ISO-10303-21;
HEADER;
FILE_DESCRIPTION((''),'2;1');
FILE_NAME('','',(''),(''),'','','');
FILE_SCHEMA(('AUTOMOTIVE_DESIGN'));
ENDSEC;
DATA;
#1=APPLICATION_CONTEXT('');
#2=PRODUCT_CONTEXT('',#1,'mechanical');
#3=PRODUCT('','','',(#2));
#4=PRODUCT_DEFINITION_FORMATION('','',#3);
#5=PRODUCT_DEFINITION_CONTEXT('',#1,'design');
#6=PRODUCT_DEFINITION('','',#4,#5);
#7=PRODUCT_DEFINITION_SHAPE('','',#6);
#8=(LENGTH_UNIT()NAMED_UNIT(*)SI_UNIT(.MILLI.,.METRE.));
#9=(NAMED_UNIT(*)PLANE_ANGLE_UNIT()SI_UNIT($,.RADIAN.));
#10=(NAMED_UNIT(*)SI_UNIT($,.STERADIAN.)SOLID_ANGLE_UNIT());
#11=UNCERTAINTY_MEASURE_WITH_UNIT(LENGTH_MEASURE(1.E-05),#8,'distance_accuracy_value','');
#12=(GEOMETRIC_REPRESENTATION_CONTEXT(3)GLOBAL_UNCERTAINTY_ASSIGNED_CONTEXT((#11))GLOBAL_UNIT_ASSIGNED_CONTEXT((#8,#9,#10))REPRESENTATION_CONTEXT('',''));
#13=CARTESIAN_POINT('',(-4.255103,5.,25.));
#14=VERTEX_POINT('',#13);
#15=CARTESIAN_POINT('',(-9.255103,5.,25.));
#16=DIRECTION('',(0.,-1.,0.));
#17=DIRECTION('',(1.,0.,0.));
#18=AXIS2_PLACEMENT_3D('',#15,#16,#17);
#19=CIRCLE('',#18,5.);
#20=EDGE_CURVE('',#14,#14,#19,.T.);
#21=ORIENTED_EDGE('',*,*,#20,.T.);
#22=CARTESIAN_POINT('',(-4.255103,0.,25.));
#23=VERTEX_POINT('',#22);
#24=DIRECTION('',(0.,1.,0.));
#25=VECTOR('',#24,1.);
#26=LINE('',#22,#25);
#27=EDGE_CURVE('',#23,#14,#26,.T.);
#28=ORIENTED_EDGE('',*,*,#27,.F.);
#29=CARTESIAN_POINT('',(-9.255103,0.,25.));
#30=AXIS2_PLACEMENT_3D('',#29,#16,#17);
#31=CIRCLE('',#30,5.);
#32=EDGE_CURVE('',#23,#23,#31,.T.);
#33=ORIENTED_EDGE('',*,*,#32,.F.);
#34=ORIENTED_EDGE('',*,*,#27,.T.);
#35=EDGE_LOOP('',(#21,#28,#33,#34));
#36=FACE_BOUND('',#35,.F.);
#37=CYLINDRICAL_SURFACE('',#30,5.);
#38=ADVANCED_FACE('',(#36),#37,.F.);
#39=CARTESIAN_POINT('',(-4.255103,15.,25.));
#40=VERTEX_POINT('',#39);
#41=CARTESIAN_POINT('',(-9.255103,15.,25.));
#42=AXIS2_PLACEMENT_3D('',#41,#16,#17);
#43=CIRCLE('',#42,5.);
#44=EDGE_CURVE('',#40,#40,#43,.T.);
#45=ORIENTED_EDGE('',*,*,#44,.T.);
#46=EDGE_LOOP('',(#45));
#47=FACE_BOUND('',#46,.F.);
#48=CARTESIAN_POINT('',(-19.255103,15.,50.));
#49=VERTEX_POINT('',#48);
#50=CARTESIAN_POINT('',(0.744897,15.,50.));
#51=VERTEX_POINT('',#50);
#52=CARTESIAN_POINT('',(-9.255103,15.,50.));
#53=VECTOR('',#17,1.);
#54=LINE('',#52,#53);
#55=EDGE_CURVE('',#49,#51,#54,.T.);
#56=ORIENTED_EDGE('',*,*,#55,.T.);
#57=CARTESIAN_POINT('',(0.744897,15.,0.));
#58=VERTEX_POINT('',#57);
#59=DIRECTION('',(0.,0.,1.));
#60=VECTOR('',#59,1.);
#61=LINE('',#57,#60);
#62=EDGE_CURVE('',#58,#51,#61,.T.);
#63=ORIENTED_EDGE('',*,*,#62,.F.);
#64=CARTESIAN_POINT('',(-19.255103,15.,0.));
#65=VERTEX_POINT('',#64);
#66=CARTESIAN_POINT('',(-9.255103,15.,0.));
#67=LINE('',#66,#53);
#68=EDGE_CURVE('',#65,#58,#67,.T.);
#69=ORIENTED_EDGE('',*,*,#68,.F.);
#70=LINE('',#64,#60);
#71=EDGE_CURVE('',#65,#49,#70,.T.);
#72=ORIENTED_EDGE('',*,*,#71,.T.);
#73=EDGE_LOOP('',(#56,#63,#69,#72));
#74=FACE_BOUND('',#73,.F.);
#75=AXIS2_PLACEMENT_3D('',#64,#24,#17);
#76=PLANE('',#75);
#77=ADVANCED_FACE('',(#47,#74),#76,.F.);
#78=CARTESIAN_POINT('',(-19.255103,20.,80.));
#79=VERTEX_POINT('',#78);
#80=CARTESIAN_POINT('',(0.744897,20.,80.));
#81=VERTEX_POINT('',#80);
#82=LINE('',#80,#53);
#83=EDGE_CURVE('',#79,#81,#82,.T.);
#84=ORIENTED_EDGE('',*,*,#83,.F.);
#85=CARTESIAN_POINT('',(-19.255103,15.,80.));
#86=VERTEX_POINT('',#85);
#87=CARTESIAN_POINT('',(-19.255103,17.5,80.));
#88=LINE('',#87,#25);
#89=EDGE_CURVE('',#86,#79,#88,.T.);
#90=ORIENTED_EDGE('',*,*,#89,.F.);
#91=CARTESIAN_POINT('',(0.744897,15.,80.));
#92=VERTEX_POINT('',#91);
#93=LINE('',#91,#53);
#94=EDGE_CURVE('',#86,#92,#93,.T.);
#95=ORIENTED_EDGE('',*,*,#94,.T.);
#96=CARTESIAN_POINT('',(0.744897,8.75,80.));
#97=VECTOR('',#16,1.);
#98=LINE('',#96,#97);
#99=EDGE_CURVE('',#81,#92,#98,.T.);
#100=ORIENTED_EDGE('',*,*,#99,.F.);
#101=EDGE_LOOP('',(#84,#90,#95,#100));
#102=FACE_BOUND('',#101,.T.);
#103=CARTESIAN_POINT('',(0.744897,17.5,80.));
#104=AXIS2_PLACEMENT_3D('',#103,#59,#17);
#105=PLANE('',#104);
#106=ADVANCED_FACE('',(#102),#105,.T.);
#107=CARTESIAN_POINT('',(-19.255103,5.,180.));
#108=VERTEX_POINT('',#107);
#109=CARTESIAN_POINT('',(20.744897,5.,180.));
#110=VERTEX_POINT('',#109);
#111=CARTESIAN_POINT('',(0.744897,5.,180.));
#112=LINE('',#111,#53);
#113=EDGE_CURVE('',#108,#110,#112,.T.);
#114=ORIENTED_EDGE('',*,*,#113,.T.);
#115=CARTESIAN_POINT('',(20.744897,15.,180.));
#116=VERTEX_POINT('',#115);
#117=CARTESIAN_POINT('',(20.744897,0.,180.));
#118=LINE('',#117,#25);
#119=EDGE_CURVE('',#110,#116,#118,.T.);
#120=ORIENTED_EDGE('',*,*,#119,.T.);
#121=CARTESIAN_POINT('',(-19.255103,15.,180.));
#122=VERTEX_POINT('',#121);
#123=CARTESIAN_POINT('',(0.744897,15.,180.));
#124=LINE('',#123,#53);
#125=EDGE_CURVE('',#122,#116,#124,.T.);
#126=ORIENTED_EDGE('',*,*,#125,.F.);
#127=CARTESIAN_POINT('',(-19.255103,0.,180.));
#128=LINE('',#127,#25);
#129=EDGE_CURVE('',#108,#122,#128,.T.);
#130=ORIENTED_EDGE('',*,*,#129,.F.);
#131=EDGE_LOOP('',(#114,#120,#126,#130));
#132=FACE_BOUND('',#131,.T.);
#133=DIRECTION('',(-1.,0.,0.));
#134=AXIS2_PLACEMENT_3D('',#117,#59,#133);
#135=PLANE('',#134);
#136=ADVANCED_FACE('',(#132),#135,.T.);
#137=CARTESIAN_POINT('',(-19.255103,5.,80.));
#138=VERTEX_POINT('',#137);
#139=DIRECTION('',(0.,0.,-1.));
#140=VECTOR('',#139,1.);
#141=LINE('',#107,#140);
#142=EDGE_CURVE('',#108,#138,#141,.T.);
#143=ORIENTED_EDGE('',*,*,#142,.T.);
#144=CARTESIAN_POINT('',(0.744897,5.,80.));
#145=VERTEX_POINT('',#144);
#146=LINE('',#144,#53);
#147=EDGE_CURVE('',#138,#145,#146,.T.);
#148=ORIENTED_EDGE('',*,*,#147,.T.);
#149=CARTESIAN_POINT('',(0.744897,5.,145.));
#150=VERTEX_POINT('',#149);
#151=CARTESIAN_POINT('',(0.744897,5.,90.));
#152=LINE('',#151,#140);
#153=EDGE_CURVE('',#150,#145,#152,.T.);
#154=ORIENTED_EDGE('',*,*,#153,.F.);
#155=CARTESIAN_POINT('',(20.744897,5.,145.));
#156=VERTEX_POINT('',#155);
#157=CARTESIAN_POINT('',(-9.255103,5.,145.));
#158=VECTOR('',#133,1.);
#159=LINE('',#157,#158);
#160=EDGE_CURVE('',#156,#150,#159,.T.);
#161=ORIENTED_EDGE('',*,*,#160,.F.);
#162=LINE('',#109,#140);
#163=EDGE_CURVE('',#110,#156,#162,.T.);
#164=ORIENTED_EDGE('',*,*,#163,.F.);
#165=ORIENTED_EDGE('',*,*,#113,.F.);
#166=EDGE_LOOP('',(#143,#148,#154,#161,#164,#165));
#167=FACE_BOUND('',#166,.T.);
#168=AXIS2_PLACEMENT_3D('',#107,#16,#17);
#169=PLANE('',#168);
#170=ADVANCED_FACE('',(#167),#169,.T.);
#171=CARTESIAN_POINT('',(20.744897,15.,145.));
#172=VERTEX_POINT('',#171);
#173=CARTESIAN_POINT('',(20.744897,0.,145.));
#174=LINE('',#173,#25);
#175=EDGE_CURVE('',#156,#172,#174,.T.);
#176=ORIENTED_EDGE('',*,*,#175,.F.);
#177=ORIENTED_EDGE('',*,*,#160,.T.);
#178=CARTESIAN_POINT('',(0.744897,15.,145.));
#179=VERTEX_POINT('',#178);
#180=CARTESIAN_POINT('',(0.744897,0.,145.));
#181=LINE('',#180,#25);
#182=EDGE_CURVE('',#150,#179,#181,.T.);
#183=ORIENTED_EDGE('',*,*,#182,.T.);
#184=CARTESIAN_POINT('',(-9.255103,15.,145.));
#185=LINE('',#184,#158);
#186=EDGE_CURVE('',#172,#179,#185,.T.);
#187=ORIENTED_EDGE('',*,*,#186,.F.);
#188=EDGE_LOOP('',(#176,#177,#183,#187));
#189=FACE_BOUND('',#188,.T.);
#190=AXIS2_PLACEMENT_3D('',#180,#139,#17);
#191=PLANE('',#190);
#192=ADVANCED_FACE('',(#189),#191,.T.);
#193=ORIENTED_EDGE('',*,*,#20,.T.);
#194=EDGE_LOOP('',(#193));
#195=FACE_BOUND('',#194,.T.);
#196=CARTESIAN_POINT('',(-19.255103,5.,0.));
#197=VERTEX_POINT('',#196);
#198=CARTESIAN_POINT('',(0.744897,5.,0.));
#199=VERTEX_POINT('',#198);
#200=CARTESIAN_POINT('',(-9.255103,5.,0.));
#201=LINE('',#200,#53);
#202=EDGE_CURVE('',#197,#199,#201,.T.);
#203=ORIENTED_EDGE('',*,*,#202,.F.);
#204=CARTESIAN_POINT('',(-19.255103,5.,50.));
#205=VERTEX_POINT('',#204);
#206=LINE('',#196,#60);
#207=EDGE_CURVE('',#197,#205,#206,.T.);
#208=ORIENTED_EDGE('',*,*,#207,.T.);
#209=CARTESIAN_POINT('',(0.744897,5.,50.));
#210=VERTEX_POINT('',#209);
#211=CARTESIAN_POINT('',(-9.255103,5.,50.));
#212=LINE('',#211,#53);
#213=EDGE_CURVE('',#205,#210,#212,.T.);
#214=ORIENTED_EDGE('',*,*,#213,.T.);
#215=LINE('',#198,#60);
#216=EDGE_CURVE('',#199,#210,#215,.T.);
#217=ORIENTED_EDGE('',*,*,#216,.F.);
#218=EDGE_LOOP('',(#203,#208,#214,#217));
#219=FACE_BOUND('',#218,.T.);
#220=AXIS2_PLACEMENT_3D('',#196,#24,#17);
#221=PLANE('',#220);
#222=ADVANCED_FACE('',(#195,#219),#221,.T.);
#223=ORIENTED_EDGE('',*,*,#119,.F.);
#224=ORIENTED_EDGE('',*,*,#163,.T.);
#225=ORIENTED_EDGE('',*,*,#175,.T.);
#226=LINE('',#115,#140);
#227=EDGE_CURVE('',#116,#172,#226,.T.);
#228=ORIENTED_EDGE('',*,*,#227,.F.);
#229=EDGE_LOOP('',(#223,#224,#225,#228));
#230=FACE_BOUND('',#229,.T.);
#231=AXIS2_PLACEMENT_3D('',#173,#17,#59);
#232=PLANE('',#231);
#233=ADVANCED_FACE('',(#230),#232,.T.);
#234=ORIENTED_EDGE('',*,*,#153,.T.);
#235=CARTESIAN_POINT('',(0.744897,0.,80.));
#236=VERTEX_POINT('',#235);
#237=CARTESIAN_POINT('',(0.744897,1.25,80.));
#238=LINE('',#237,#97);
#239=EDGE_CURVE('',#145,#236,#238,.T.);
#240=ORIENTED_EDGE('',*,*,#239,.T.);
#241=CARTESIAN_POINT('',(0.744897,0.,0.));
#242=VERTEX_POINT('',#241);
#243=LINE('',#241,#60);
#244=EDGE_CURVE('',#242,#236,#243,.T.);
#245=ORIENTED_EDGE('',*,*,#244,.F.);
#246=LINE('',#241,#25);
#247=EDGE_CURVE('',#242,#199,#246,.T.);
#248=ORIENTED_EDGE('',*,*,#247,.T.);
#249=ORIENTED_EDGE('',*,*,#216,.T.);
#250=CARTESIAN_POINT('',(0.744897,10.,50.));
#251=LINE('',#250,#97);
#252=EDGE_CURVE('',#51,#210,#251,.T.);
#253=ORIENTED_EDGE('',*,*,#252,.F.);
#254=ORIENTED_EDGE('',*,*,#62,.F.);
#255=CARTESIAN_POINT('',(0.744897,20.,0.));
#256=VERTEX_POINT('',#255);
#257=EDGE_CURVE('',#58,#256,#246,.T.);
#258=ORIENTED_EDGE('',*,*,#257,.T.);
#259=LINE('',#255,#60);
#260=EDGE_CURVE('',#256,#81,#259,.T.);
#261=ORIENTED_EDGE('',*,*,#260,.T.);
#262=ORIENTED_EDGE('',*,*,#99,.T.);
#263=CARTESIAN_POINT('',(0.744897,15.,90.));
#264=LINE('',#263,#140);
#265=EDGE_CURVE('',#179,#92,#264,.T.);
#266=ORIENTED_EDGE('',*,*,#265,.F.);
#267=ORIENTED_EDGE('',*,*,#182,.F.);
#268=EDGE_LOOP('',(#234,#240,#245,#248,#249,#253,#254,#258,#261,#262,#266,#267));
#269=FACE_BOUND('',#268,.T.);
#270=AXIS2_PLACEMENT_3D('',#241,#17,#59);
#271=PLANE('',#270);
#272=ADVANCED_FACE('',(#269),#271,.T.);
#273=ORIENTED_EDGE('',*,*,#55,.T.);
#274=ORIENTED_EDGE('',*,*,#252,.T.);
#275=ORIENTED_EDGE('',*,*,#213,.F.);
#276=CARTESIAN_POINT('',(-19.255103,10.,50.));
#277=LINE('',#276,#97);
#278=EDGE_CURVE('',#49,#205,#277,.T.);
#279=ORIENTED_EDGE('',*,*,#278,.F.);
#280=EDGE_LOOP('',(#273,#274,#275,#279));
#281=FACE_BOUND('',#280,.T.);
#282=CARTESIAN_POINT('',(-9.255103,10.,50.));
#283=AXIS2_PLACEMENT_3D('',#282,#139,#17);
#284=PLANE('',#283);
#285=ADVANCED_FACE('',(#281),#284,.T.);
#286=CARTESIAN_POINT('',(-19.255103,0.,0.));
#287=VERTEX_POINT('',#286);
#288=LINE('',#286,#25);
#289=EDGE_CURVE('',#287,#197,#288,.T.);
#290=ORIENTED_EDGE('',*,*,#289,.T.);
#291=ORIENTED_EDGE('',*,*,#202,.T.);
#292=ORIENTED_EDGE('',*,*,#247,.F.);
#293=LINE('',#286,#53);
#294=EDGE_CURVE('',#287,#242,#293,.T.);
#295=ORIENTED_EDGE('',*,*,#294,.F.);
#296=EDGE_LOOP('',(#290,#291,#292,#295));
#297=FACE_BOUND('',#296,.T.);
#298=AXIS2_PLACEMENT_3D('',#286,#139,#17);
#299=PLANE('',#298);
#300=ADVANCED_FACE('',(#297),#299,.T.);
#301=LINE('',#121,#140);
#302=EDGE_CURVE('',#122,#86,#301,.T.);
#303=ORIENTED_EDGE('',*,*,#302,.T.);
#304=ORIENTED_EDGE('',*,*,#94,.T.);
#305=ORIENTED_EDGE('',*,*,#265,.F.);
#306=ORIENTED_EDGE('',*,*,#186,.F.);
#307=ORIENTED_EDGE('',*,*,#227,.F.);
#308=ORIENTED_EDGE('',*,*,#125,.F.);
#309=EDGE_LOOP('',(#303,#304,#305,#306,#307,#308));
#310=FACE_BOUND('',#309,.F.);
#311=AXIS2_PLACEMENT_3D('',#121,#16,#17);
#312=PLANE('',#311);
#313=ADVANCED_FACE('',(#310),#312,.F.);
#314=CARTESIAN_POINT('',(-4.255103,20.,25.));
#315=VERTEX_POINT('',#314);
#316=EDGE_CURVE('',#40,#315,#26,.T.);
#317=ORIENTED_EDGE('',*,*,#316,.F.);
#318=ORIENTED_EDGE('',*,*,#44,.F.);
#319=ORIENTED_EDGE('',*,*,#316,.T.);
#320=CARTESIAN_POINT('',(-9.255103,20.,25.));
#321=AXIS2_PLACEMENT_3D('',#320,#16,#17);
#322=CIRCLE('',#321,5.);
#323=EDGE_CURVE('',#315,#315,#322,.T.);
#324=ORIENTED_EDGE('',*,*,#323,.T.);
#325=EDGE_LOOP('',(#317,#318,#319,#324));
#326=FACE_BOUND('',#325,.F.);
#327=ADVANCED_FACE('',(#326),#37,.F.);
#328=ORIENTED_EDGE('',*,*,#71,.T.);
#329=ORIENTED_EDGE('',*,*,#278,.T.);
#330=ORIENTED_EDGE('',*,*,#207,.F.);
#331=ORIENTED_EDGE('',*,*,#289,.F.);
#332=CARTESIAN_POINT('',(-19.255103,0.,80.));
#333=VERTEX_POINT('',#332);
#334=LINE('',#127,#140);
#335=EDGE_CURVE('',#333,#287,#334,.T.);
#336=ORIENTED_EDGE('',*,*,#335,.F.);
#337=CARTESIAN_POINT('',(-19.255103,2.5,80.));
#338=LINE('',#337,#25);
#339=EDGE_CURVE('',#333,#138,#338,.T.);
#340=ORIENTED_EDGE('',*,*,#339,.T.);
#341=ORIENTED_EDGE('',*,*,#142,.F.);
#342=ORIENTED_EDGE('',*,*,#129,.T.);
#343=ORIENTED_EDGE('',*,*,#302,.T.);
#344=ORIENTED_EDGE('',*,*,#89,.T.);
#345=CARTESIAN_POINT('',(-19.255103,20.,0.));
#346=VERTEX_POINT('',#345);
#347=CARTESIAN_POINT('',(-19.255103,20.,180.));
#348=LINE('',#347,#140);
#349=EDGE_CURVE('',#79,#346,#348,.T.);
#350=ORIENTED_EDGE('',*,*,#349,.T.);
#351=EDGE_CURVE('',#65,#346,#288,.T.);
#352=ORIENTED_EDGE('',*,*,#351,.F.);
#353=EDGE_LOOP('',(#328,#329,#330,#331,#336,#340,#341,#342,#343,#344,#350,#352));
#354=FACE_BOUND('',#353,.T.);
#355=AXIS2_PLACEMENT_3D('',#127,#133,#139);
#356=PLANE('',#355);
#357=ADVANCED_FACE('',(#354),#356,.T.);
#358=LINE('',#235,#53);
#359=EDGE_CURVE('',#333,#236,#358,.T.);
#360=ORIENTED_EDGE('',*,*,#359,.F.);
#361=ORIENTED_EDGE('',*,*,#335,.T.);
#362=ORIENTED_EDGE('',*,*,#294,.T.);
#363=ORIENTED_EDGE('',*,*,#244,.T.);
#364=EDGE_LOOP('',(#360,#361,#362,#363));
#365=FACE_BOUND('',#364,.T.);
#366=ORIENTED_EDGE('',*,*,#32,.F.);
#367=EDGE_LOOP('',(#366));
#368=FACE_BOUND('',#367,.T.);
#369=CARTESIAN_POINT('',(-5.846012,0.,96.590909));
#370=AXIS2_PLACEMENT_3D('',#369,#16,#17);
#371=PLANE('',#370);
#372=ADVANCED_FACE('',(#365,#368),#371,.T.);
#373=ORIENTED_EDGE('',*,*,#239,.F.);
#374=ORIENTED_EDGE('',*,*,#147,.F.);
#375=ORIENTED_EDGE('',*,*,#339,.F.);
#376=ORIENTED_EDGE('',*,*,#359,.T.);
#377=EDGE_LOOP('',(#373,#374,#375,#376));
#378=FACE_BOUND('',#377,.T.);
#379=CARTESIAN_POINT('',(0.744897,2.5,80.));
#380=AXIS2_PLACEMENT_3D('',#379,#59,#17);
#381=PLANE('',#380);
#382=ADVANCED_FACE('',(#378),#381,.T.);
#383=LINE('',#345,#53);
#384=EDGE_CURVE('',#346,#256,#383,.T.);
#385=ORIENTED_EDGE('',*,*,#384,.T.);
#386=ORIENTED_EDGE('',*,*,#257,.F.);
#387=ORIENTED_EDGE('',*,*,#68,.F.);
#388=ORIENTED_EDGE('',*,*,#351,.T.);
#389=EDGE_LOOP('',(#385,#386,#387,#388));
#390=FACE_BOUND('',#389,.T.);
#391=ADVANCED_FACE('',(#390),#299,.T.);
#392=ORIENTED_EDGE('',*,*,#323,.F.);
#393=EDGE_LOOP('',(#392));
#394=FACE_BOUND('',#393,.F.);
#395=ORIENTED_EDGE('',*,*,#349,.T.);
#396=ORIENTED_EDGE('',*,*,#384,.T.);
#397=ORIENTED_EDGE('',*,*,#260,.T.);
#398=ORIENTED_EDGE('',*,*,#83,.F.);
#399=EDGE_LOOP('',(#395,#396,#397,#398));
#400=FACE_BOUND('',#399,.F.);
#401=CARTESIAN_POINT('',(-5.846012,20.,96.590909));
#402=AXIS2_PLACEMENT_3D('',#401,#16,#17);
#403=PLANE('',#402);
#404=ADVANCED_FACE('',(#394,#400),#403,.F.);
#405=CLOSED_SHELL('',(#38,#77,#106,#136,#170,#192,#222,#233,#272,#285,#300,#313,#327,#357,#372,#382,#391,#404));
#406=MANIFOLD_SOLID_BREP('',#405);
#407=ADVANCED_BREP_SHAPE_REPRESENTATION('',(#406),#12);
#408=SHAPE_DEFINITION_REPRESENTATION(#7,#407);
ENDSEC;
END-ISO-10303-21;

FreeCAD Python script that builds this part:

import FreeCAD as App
import Part
import Sketcher
from FreeCAD import Vector
Q = App.Units.Quantity


def add_polygon(sketch, points):
    """Adds a closed chain of lines whose ends are joined by coincident constraints."""
    first, n = sketch.GeometryCount, len(points)
    for a, b in zip(points, points[1:] + points[:1]):
        sketch.addGeometry(Part.LineSegment(App.Vector(*a, 0), App.Vector(*b, 0)), False)
    for i in range(n):
        sketch.addConstraint(Sketcher.Constraint("Coincident", first + i, 2, first + (i + 1) % n, 1))

doc = App.newDocument("Part")
params = doc.addObject("Spreadsheet::Sheet", "Params")
for row, (alias, value) in enumerate([
    ("sketch1_width", "20 mm"),
    ("sketch1_height", "180 mm"),
    ("sketch1_height2", "145 mm"),
    ("pad1_length", "20 mm"),
    ("sketch2_width", "40 mm"),
    ("sketch2_height", "5 mm"),
    ("pocket1_length", "100 mm"),
    ("sketch3_width", "20 mm"),
    ("sketch3_height", "10 mm"),
    ("pocket2_length", "50 mm"),
    ("sketch4_diameter", "10 mm"),
], start=1):
    params.set(f"A{row}", alias)
    params.set(f"B{row}", "=" + value)
    params.setAlias(f"B{row}", alias)

body = doc.addObject("PartDesign::Body", "Body")

sketch1 = doc.addObject("Sketcher::SketchObject", "Sketch")
body.addObject(sketch1)
sketch1.AttachmentSupport = (doc.XZ_Plane, [""])
sketch1.MapMode = "FlatFace"
add_polygon(sketch1, [(-19.255103, 180), (-19.255103, 0), (0.744897, 0), (0.744897, 145), (20.744897, 145), (20.744897, 180)])
sketch1.addConstraint(Sketcher.Constraint("Vertical", 0))
sketch1.addConstraint(Sketcher.Constraint("Horizontal", 1))
sketch1.addConstraint(Sketcher.Constraint("Vertical", 2))
sketch1.addConstraint(Sketcher.Constraint("Horizontal", 3))
sketch1.addConstraint(Sketcher.Constraint("Vertical", 4))
sketch1.addConstraint(Sketcher.Constraint("Horizontal", 5))
sketch1.addConstraint(Sketcher.Constraint("PointOnObject", 0, 2, -1))
sketch1.addConstraint(Sketcher.Constraint("Equal", 1, 3))
sketch1.addConstraint(Sketcher.Constraint("DistanceX", 1, 1, 1, 2, Q("20 mm")))
sketch1.addConstraint(Sketcher.Constraint("DistanceY", 0, 2, 0, 1, Q("180 mm")))
sketch1.addConstraint(Sketcher.Constraint("DistanceY", 2, 1, 2, 2, Q("145 mm")))
sketch1.addConstraint(Sketcher.Constraint("DistanceX", 0, 2, -1, 1, Q("19.255103 mm")))
sketch1.setExpression("Constraints[14]", "Params.sketch1_width")
sketch1.setExpression("Constraints[15]", "Params.sketch1_height")
sketch1.setExpression("Constraints[16]", "Params.sketch1_height2")
pad1 = doc.addObject("PartDesign::Pad", "Pad")
body.addObject(pad1)
pad1.Profile = sketch1
pad1.setExpression("Length", "Params.pad1_length")
pad1.Reversed = True

sketch2 = doc.addObject("Sketcher::SketchObject", "Sketch001")
body.addObject(sketch2)
sketch2.AttachmentSupport = (doc.XY_Plane, [""])
sketch2.MapMode = "FlatFace"
sketch2.AttachmentOffset = App.Placement(Vector(0, 0, 180), App.Rotation())
add_polygon(sketch2, [(-19.255103, 20), (-19.255103, 15), (20.744897, 15), (20.744897, 20)])
add_polygon(sketch2, [(-19.255103, 5), (-19.255103, 0), (20.744897, 0), (20.744897, 5)])
sketch2.addConstraint(Sketcher.Constraint("Vertical", 0))
sketch2.addConstraint(Sketcher.Constraint("Horizontal", 1))
sketch2.addConstraint(Sketcher.Constraint("Vertical", 2))
sketch2.addConstraint(Sketcher.Constraint("Horizontal", 3))
sketch2.addConstraint(Sketcher.Constraint("Vertical", 4))
sketch2.addConstraint(Sketcher.Constraint("Horizontal", 5))
sketch2.addConstraint(Sketcher.Constraint("Vertical", 6))
sketch2.addConstraint(Sketcher.Constraint("Horizontal", 7))
sketch2.addConstraint(Sketcher.Constraint("PointOnObject", 4, 2, -1))
sketch2.addConstraint(Sketcher.Constraint("Vertical", 3, 2, 4, 2))
sketch2.addConstraint(Sketcher.Constraint("Vertical", 2, 2, 5, 2))
sketch2.addConstraint(Sketcher.Constraint("Equal", 2, 4))
sketch2.addConstraint(Sketcher.Constraint("DistanceX", 1, 1, 1, 2, Q("40 mm")))
sketch2.addConstraint(Sketcher.Constraint("DistanceY", 0, 2, 0, 1, Q("5 mm")))
sketch2.addConstraint(Sketcher.Constraint("DistanceY", -1, 1, 0, 2, Q("15 mm")))
sketch2.addConstraint(Sketcher.Constraint("DistanceX", 0, 2, -1, 1, Q("19.255103 mm")))
sketch2.setExpression("Constraints[20]", "Params.sketch2_width")
sketch2.setExpression("Constraints[21]", "Params.sketch2_height")
pocket1 = doc.addObject("PartDesign::Pocket", "Pocket")
body.addObject(pocket1)
pocket1.Profile = sketch2
pocket1.setExpression("Length", "Params.pocket1_length")

sketch3 = doc.addObject("Sketcher::SketchObject", "Sketch002")
body.addObject(sketch3)
sketch3.AttachmentSupport = (doc.XY_Plane, [""])
sketch3.MapMode = "FlatFace"
add_polygon(sketch3, [(-19.255103, 5), (-19.255103, 15), (0.744897, 15), (0.744897, 5)])
sketch3.addConstraint(Sketcher.Constraint("Vertical", 0))
sketch3.addConstraint(Sketcher.Constraint("Horizontal", 1))
sketch3.addConstraint(Sketcher.Constraint("Vertical", 2))
sketch3.addConstraint(Sketcher.Constraint("Horizontal", 3))
sketch3.addConstraint(Sketcher.Constraint("DistanceX", 1, 1, 1, 2, Q("20 mm")))
sketch3.addConstraint(Sketcher.Constraint("DistanceY", 0, 1, 0, 2, Q("10 mm")))
sketch3.addConstraint(Sketcher.Constraint("DistanceY", -1, 1, 0, 2, Q("15 mm")))
sketch3.addConstraint(Sketcher.Constraint("DistanceX", 0, 2, -1, 1, Q("19.255103 mm")))
sketch3.setExpression("Constraints[8]", "Params.sketch3_width")
sketch3.setExpression("Constraints[9]", "Params.sketch3_height")
pocket2 = doc.addObject("PartDesign::Pocket", "Pocket001")
body.addObject(pocket2)
pocket2.Profile = sketch3
pocket2.setExpression("Length", "Params.pocket2_length")
pocket2.Reversed = True

sketch4 = doc.addObject("Sketcher::SketchObject", "Sketch003")
body.addObject(sketch4)
sketch4.AttachmentSupport = (doc.XZ_Plane, [""])
sketch4.MapMode = "FlatFace"
sketch4.addGeometry(Part.Circle(Vector(-9.255103, 25, 0), Vector(0, 0, 1), 5), False)
sketch4.addConstraint(Sketcher.Constraint("Diameter", 0, Q("10 mm")))
sketch4.addConstraint(Sketcher.Constraint("DistanceY", -1, 1, 0, 3, Q("25 mm")))
sketch4.addConstraint(Sketcher.Constraint("DistanceX", 0, 3, -1, 1, Q("9.255103 mm")))
sketch4.setExpression("Constraints[0]", "Params.sketch4_diameter")
pocket3 = doc.addObject("PartDesign::Pocket", "Pocket002")
body.addObject(pocket3)
pocket3.Profile = sketch4
pocket3.Type = "ThroughAll"

doc.recompute()
